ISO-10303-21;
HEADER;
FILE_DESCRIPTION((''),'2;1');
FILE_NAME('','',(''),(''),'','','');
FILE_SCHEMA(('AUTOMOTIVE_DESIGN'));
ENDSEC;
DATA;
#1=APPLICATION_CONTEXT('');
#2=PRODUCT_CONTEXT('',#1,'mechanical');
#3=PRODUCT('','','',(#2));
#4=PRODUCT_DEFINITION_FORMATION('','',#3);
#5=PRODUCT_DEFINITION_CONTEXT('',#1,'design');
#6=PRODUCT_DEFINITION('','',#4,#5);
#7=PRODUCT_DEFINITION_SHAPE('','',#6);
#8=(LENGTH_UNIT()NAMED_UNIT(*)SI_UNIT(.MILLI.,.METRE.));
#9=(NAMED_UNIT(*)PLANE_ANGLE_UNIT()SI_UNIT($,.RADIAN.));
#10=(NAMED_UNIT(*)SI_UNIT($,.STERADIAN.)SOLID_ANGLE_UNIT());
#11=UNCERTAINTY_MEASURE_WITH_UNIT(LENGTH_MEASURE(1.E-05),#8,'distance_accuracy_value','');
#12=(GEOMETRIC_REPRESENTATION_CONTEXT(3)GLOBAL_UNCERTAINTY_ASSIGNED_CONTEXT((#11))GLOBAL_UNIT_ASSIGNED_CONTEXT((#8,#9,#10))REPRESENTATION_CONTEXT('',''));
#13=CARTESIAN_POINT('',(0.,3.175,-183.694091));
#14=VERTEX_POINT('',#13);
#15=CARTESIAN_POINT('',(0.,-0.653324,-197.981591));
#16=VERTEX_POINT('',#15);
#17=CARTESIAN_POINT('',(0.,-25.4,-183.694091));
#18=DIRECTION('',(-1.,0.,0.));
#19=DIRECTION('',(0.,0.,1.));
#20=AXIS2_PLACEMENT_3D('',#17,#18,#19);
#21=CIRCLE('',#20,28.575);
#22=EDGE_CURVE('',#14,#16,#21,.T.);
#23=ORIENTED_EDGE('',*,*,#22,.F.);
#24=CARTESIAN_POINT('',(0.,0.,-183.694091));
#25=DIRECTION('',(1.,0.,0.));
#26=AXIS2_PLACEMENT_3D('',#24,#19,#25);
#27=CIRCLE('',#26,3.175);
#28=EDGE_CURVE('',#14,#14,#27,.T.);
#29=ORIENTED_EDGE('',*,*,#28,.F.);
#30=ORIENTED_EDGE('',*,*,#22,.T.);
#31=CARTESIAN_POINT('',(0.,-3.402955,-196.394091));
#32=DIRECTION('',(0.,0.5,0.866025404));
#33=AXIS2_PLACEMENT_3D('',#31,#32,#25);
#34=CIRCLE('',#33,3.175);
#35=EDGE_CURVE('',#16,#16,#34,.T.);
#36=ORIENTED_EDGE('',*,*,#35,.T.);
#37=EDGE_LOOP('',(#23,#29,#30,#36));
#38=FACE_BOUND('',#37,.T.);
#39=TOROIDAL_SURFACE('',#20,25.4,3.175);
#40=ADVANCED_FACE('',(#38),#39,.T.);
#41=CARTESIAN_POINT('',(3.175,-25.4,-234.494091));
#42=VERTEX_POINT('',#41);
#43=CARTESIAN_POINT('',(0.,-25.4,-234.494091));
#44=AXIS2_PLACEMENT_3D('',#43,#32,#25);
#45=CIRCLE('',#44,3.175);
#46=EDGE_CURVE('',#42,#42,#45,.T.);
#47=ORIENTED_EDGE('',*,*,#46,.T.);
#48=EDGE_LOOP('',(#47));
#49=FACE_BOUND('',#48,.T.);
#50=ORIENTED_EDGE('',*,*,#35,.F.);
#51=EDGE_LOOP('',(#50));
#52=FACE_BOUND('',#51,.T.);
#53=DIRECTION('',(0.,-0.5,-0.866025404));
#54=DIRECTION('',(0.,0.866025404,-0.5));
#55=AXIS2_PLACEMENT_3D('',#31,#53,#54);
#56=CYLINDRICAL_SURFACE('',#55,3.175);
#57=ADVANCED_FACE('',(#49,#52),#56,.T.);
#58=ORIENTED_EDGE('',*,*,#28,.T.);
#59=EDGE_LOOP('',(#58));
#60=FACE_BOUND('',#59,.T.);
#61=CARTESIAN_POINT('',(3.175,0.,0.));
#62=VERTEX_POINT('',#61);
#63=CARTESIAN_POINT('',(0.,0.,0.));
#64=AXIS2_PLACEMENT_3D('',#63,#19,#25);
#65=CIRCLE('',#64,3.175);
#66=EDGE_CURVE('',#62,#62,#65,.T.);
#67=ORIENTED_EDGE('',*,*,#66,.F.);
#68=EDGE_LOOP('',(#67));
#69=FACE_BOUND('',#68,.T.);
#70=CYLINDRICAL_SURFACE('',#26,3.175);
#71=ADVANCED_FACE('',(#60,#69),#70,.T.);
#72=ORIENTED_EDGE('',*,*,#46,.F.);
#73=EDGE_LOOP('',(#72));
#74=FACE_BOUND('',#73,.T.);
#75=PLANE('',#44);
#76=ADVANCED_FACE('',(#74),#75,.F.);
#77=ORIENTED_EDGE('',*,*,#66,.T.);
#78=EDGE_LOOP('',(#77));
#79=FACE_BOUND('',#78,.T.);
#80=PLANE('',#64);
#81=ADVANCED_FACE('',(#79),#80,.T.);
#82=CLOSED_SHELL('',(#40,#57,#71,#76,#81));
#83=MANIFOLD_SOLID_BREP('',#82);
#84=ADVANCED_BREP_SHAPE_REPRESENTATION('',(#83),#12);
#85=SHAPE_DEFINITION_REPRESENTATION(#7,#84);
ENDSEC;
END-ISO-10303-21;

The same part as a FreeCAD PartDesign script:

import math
import FreeCAD as App
import Part
import Sketcher

V = App.Vector
Q = App.Units.Quantity

doc = App.newDocument("Part")
body = doc.addObject("PartDesign::Body", "Body")

# Sketch on XY plane
sketch1 = doc.addObject("Sketcher::SketchObject", "Sketch")
body.addObject(sketch1)
sketch1.AttachmentSupport = (doc.XY_Plane, [""])
sketch1.MapMode = "FlatFace"
sketch1.addGeometry(Part.Circle(V(0, 0, 0), V(0, 0, 1), 3.2), False)
sketch1.addConstraint(Sketcher.Constraint("Coincident", 0, 3, -1, 1))
sketch1.addConstraint(Sketcher.Constraint("Diameter", 0, Q("0.25 in")))

# Sketch on YZ plane
sketch2 = doc.addObject("Sketcher::SketchObject", "Sketch001")
body.addObject(sketch2)
sketch2.AttachmentSupport = (doc.YZ_Plane, [""])
sketch2.MapMode = "FlatFace"
sketch2.addGeometry(Part.LineSegment(V(0, 0, 0), V(0, -184, 0)), False)
sketch2.addGeometry(Part.ArcOfCircle(Part.Circle(V(-25, -184, 0), V(0, 0, 1), 25), math.radians(-30), math.radians(0)), False)
sketch2.addGeometry(Part.LineSegment(V(-3, -196, 0), V(-25, -234, 0)), False)
sketch2.addConstraint(Sketcher.Constraint("Tangent", 0, 2, 1, 2))
sketch2.addConstraint(Sketcher.Constraint("Tangent", 1, 1, 2, 1))
sketch2.addConstraint(Sketcher.Constraint("Vertical", 0))
sketch2.addConstraint(Sketcher.Constraint("Coincident", 0, 1, -1, 1))
sketch2.addConstraint(Sketcher.Constraint("Vertical", 1, 3, 2, 2))
sketch2.addConstraint(Sketcher.Constraint("Radius", 1, Q("1 in")))
sketch2.addConstraint(Sketcher.Constraint("Angle", 2, Q("-120 deg")))
sketch2.addConstraint(Sketcher.Constraint("DistanceY", 0, 2, 0, 1, 183.694091))
doc.recompute()

additivepipe = doc.addObject("PartDesign::AdditivePipe", "AdditivePipe")
body.addObject(additivepipe)
additivepipe.Profile = sketch1
additivepipe.Spine = (sketch2, ["Edge1", "Edge2", "Edge3"])

doc.recompute()
